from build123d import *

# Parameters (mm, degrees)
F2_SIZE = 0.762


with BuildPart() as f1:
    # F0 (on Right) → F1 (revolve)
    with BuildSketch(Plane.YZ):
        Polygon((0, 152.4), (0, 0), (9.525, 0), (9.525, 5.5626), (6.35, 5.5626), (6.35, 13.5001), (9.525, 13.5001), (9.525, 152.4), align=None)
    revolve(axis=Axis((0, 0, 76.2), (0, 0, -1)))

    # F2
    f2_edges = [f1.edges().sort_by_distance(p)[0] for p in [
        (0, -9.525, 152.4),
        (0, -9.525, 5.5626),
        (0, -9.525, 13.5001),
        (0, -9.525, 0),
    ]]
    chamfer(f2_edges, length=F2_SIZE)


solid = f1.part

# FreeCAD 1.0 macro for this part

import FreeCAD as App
import Part
import Sketcher

V = App.Vector
Q = App.Units.Quantity


def edges_at(feature, points):
    """Names of the edges that pass closest to the given points."""
    edges = feature.Shape.Edges
    near = lambda p: min(range(len(edges)), key=lambda i: edges[i].distToShape(Part.Vertex(*p))[0])
    return sorted({f"Edge{near(p) + 1}" for p in points})

doc = App.newDocument("Part")
body = doc.addObject("PartDesign::Body", "Body")

# Sketch on YZ plane
sketch1 = body.newObject("Sketcher::SketchObject", "Sketch")
sketch1.AttachmentSupport = (doc.getObject("YZ_Plane"), [""])
sketch1.MapMode = "FlatFace"
sketch1.addGeometry(Part.LineSegment(V(0, 152.4, 0), V(0, 0, 0)), False)
sketch1.addGeometry(Part.LineSegment(V(0, 0, 0), V(9.5, 0, 0)), False)
sketch1.addGeometry(Part.LineSegment(V(9.5, 0, 0), V(9.5, 5.6, 0)), False)
sketch1.addGeometry(Part.LineSegment(V(9.5, 5.6, 0), V(6.3, 5.6, 0)), False)
sketch1.addGeometry(Part.LineSegment(V(6.3, 5.6, 0), V(6.3, 13.5, 0)), False)
sketch1.addGeometry(Part.LineSegment(V(6.3, 13.5, 0), V(9.5, 13.5, 0)), False)
sketch1.addGeometry(Part.LineSegment(V(9.5, 13.5, 0), V(9.5, 152.4, 0)), False)
sketch1.addGeometry(Part.LineSegment(V(9.5, 152.4, 0), V(0, 152.4, 0)), False)
sketch1.addConstraint(Sketcher.Constraint("Coincident", 0, 2, 1, 1))
sketch1.addConstraint(Sketcher.Constraint("Coincident", 1, 2, 2, 1))
sketch1.addConstraint(Sketcher.Constraint("Coincident", 2, 2, 3, 1))
sketch1.addConstraint(Sketcher.Constraint("Coincident", 3, 2, 4, 1))
sketch1.addConstraint(Sketcher.Constraint("Coincident", 4, 2, 5, 1))
sketch1.addConstraint(Sketcher.Constraint("Coincident", 5, 2, 6, 1))
sketch1.addConstraint(Sketcher.Constraint("Coincident", 6, 2, 7, 1))
sketch1.addConstraint(Sketcher.Constraint("Coincident", 7, 2, 0, 1))
sketch1.addConstraint(Sketcher.Constraint("Vertical", 0))
sketch1.addConstraint(Sketcher.Constraint("Horizontal", 1))
sketch1.addConstraint(Sketcher.Constraint("Vertical", 2))
sketch1.addConstraint(Sketcher.Constraint("Horizontal", 3))
sketch1.addConstraint(Sketcher.Constraint("Vertical", 4))
sketch1.addConstraint(Sketcher.Constraint("Horizontal", 5))
sketch1.addConstraint(Sketcher.Constraint("Vertical", 6))
sketch1.addConstraint(Sketcher.Constraint("Horizontal", 7))
sketch1.addConstraint(Sketcher.Constraint("Coincident", 0, 2, -1, 1))
sketch1.addConstraint(Sketcher.Constraint("Vertical", 2, 2, 5, 2))
sketch1.addConstraint(Sketcher.Constraint("DistanceY", 0, 2, 0, 1, Q("6 in")))
sketch1.addConstraint(Sketcher.Constraint("DistanceX", 1, 1, 1, 2, Q("0.375 in")))
sketch1.addConstraint(Sketcher.Constraint("DistanceX", 3, 2, 3, 1, Q("0.125 in")))
sketch1.addConstraint(Sketcher.Constraint("DistanceY", 2, 1, 2, 2, Q("0.219 in")))
sketch1.addConstraint(Sketcher.Constraint("DistanceY", 4, 1, 4, 2, Q("0.3125 in")))
revolution = body.newObject("PartDesign::Revolution", "Revolution")
revolution.Profile = sketch1
revolution.ReferenceAxis = (sketch1, ["V_Axis"])
revolution.Angle = 360
doc.recompute()

chamfer = body.newObject("PartDesign::Chamfer", "Chamfer")
chamfer.Base = (revolution, edges_at(revolution, [
    (0, -9.525, 152.4),
    (0, -9.525, 5.563),
    (0, -9.525, 13.5),
    (0, -9.525, 0),
]))
chamfer.Size = Q("0.03 in")

doc.recompute()
